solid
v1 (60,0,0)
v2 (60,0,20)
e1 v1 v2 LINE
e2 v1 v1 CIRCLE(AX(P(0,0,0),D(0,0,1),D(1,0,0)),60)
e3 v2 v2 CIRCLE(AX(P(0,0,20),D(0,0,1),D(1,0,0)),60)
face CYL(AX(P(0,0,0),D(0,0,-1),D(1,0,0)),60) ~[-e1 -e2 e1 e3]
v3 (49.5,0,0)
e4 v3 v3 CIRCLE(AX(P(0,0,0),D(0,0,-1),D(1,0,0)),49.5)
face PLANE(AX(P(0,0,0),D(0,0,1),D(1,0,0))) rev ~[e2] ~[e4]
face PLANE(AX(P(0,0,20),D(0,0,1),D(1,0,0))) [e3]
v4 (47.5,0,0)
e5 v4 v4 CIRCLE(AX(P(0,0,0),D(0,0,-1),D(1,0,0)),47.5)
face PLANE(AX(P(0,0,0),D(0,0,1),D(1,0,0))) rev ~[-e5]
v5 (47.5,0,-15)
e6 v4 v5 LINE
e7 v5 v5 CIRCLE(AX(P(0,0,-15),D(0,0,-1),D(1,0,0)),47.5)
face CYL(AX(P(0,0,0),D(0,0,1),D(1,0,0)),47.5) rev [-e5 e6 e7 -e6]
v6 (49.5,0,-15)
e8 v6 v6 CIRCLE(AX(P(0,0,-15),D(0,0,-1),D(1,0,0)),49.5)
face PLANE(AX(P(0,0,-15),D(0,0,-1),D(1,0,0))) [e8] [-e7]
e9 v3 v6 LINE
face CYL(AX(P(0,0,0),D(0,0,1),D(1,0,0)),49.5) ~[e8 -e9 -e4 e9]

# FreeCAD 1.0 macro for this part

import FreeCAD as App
import Part
import Sketcher

doc = App.newDocument("Part")
body = doc.addObject("PartDesign::Body", "Body")

# Sketch on XY plane
sketch1 = body.newObject("Sketcher::SketchObject", "Sketch")
sketch1.AttachmentSupport = (doc.getObject("XY_Plane"), [""])
sketch1.MapMode = "FlatFace"
sketch1.addGeometry(Part.Circle(App.Vector(0, 0, 0), App.Vector(0, 0, 1), 60), False)
sketch1.addConstraint([
    Sketcher.Constraint("Coincident", 0, 3, -1, 1),
    Sketcher.Constraint("Diameter", 0, 120.0),
])
pad1 = body.newObject("PartDesign::Pad", "Pad")
pad1.Profile = sketch1
pad1.Length = 20

# Sketch on XY plane
sketch2 = body.newObject("Sketcher::SketchObject", "Sketch001")
sketch2.AttachmentSupport = (doc.getObject("XY_Plane"), [""])
sketch2.MapMode = "FlatFace"
sketch2.addGeometry([
    Part.Circle(App.Vector(0, 0, 0), App.Vector(0, 0, 1), 50),
    Part.Circle(App.Vector(0, 0, 0), App.Vector(0, 0, 1), 48),
], False)
sketch2.addConstraint([
    Sketcher.Constraint("Coincident", 0, 3, -1, 1),
    Sketcher.Constraint("Coincident", 1, 3, -1, 1),
    Sketcher.Constraint("Diameter", 0, 99.0),
    Sketcher.Constraint("Diameter", 1, 95.0),
])
pad2 = body.newObject("PartDesign::Pad", "Pad001")
pad2.Profile = sketch2
pad2.Length = 15
pad2.Reversed = True

doc.recompute()
